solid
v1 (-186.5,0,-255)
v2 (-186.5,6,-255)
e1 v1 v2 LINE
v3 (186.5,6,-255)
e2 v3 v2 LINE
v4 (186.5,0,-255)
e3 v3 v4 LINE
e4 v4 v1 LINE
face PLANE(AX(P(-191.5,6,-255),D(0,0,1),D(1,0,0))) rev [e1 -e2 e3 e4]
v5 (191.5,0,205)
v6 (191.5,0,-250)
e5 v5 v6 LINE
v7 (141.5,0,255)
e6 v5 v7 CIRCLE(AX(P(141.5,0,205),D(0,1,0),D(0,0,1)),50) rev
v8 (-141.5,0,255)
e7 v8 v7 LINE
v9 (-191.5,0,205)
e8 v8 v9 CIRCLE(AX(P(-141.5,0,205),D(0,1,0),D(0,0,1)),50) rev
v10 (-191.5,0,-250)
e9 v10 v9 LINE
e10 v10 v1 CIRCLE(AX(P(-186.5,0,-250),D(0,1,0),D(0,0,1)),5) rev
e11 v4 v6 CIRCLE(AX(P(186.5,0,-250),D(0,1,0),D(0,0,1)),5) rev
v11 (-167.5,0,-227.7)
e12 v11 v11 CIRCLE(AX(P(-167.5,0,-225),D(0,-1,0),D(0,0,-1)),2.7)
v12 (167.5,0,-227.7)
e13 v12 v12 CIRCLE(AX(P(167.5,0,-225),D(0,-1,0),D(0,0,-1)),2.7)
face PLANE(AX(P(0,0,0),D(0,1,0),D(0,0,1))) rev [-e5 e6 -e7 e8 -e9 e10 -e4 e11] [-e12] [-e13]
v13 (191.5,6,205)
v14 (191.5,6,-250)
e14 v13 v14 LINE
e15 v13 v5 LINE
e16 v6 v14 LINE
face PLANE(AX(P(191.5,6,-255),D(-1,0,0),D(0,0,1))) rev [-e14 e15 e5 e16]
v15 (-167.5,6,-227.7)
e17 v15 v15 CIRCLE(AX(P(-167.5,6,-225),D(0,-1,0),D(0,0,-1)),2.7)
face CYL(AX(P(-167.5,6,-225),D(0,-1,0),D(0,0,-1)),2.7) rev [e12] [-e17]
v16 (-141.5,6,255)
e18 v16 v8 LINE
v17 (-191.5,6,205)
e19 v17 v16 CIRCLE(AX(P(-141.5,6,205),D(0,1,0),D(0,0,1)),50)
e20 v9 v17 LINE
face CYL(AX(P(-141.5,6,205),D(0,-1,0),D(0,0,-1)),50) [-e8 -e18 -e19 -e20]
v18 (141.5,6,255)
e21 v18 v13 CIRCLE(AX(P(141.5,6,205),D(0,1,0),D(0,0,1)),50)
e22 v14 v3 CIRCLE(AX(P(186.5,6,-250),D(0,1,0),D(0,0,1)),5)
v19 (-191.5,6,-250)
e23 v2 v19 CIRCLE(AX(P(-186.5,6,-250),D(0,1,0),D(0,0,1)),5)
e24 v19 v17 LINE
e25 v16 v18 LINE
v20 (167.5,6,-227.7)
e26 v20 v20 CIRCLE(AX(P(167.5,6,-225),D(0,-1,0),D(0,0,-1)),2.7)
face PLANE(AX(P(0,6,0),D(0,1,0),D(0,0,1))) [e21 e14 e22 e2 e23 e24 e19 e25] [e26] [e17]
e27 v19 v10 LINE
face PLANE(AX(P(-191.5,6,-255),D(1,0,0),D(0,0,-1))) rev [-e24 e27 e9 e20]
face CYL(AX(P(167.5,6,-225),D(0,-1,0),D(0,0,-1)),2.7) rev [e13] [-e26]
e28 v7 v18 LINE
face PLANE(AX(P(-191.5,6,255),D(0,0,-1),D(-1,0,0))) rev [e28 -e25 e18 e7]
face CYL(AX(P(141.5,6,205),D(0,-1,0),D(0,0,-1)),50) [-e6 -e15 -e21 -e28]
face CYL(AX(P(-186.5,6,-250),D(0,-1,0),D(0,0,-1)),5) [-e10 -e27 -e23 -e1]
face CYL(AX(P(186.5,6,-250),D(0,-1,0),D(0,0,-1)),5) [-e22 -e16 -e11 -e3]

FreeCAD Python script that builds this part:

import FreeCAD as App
import Part
import Sketcher
Q = App.Units.Quantity


def edges_at(feature, points):
    """Names of the edges that pass closest to the given points."""
    edges = feature.Shape.Edges
    near = lambda p: min(range(len(edges)), key=lambda i: edges[i].distToShape(Part.Vertex(*p))[0])
    return sorted({f"Edge{near(p) + 1}" for p in points})


def add_polygon(sketch, points):
    """Adds a closed chain of lines whose ends are joined by coincident constraints."""
    first, n = sketch.GeometryCount, len(points)
    for a, b in zip(points, points[1:] + points[:1]):
        sketch.addGeometry(Part.LineSegment(App.Vector(*a, 0), App.Vector(*b, 0)), False)
    for i in range(n):
        sketch.addConstraint(Sketcher.Constraint("Coincident", first + i, 2, first + (i + 1) % n, 1))

doc = App.newDocument("Part")
body = doc.addObject("PartDesign::Body", "Body")

# Sketch on XZ plane
sketch1 = body.newObject("Sketcher::SketchObject", "Sketch")
sketch1.AttachmentSupport = (doc.getObject("XZ_Plane"), [""])
sketch1.MapMode = "FlatFace"
add_polygon(sketch1, [(-192, -255), (-192, 255), (192, 255), (192, -255)])  # lines 0-3
sketch1.addConstraint([
    Sketcher.Constraint("Vertical", 0),
    Sketcher.Constraint("Horizontal", 1),
    Sketcher.Constraint("Vertical", 2),
    Sketcher.Constraint("Horizontal", 3),
    Sketcher.Constraint("Symmetric", 0, 2, 2, 2, -1, 1),
    Sketcher.Constraint("DistanceX", 1, 1, 1, 2, Q("383 mm")),
    Sketcher.Constraint("DistanceY", 0, 1, 0, 2, Q("510 mm")),
])
pad1 = body.newObject("PartDesign::Pad", "Pad")
pad1.Profile = sketch1
pad1.Length = 6
pad1.Reversed = True

# Sketch on XZ plane
sketch2 = body.newObject("Sketcher::SketchObject", "Sketch001")
sketch2.AttachmentSupport = (doc.getObject("XZ_Plane"), [""])
sketch2.MapMode = "FlatFace"
sketch2.addGeometry([
    Part.Circle(App.Vector(-167.5, -225, 0), App.Vector(0, 0, 1), 2.7),
    Part.Circle(App.Vector(167.5, -225, 0), App.Vector(0, 0, 1), 2.7),
], False)
sketch2.addConstraint([
    Sketcher.Constraint("Equal", 0, 1),
    Sketcher.Constraint("Symmetric", 0, 3, 1, 3, -2),
    Sketcher.Constraint("Diameter", 0, Q("5.4 mm")),
    Sketcher.Constraint("DistanceY", 0, 3, -1, 1, Q("225 mm")),
    Sketcher.Constraint("DistanceX", 0, 3, 1, 3, Q("335 mm")),
])
pocket1 = body.newObject("PartDesign::Pocket", "Pocket")
pocket1.Profile = sketch2
pocket1.Type = "ThroughAll"
doc.recompute()

fillet = body.newObject("PartDesign::Fillet", "Fillet")
fillet.Base = (pocket1, edges_at(pocket1, [(191.5, 3, 255), (-191.5, 3, 255)]))
fillet.Radius = 50
doc.recompute()

fillet2 = body.newObject("PartDesign::Fillet", "Fillet001")
fillet2.Base = (fillet, edges_at(fillet, [(-191.5, 3, -255), (191.5, 3, -255)]))
fillet2.Radius = 5

doc.recompute()
